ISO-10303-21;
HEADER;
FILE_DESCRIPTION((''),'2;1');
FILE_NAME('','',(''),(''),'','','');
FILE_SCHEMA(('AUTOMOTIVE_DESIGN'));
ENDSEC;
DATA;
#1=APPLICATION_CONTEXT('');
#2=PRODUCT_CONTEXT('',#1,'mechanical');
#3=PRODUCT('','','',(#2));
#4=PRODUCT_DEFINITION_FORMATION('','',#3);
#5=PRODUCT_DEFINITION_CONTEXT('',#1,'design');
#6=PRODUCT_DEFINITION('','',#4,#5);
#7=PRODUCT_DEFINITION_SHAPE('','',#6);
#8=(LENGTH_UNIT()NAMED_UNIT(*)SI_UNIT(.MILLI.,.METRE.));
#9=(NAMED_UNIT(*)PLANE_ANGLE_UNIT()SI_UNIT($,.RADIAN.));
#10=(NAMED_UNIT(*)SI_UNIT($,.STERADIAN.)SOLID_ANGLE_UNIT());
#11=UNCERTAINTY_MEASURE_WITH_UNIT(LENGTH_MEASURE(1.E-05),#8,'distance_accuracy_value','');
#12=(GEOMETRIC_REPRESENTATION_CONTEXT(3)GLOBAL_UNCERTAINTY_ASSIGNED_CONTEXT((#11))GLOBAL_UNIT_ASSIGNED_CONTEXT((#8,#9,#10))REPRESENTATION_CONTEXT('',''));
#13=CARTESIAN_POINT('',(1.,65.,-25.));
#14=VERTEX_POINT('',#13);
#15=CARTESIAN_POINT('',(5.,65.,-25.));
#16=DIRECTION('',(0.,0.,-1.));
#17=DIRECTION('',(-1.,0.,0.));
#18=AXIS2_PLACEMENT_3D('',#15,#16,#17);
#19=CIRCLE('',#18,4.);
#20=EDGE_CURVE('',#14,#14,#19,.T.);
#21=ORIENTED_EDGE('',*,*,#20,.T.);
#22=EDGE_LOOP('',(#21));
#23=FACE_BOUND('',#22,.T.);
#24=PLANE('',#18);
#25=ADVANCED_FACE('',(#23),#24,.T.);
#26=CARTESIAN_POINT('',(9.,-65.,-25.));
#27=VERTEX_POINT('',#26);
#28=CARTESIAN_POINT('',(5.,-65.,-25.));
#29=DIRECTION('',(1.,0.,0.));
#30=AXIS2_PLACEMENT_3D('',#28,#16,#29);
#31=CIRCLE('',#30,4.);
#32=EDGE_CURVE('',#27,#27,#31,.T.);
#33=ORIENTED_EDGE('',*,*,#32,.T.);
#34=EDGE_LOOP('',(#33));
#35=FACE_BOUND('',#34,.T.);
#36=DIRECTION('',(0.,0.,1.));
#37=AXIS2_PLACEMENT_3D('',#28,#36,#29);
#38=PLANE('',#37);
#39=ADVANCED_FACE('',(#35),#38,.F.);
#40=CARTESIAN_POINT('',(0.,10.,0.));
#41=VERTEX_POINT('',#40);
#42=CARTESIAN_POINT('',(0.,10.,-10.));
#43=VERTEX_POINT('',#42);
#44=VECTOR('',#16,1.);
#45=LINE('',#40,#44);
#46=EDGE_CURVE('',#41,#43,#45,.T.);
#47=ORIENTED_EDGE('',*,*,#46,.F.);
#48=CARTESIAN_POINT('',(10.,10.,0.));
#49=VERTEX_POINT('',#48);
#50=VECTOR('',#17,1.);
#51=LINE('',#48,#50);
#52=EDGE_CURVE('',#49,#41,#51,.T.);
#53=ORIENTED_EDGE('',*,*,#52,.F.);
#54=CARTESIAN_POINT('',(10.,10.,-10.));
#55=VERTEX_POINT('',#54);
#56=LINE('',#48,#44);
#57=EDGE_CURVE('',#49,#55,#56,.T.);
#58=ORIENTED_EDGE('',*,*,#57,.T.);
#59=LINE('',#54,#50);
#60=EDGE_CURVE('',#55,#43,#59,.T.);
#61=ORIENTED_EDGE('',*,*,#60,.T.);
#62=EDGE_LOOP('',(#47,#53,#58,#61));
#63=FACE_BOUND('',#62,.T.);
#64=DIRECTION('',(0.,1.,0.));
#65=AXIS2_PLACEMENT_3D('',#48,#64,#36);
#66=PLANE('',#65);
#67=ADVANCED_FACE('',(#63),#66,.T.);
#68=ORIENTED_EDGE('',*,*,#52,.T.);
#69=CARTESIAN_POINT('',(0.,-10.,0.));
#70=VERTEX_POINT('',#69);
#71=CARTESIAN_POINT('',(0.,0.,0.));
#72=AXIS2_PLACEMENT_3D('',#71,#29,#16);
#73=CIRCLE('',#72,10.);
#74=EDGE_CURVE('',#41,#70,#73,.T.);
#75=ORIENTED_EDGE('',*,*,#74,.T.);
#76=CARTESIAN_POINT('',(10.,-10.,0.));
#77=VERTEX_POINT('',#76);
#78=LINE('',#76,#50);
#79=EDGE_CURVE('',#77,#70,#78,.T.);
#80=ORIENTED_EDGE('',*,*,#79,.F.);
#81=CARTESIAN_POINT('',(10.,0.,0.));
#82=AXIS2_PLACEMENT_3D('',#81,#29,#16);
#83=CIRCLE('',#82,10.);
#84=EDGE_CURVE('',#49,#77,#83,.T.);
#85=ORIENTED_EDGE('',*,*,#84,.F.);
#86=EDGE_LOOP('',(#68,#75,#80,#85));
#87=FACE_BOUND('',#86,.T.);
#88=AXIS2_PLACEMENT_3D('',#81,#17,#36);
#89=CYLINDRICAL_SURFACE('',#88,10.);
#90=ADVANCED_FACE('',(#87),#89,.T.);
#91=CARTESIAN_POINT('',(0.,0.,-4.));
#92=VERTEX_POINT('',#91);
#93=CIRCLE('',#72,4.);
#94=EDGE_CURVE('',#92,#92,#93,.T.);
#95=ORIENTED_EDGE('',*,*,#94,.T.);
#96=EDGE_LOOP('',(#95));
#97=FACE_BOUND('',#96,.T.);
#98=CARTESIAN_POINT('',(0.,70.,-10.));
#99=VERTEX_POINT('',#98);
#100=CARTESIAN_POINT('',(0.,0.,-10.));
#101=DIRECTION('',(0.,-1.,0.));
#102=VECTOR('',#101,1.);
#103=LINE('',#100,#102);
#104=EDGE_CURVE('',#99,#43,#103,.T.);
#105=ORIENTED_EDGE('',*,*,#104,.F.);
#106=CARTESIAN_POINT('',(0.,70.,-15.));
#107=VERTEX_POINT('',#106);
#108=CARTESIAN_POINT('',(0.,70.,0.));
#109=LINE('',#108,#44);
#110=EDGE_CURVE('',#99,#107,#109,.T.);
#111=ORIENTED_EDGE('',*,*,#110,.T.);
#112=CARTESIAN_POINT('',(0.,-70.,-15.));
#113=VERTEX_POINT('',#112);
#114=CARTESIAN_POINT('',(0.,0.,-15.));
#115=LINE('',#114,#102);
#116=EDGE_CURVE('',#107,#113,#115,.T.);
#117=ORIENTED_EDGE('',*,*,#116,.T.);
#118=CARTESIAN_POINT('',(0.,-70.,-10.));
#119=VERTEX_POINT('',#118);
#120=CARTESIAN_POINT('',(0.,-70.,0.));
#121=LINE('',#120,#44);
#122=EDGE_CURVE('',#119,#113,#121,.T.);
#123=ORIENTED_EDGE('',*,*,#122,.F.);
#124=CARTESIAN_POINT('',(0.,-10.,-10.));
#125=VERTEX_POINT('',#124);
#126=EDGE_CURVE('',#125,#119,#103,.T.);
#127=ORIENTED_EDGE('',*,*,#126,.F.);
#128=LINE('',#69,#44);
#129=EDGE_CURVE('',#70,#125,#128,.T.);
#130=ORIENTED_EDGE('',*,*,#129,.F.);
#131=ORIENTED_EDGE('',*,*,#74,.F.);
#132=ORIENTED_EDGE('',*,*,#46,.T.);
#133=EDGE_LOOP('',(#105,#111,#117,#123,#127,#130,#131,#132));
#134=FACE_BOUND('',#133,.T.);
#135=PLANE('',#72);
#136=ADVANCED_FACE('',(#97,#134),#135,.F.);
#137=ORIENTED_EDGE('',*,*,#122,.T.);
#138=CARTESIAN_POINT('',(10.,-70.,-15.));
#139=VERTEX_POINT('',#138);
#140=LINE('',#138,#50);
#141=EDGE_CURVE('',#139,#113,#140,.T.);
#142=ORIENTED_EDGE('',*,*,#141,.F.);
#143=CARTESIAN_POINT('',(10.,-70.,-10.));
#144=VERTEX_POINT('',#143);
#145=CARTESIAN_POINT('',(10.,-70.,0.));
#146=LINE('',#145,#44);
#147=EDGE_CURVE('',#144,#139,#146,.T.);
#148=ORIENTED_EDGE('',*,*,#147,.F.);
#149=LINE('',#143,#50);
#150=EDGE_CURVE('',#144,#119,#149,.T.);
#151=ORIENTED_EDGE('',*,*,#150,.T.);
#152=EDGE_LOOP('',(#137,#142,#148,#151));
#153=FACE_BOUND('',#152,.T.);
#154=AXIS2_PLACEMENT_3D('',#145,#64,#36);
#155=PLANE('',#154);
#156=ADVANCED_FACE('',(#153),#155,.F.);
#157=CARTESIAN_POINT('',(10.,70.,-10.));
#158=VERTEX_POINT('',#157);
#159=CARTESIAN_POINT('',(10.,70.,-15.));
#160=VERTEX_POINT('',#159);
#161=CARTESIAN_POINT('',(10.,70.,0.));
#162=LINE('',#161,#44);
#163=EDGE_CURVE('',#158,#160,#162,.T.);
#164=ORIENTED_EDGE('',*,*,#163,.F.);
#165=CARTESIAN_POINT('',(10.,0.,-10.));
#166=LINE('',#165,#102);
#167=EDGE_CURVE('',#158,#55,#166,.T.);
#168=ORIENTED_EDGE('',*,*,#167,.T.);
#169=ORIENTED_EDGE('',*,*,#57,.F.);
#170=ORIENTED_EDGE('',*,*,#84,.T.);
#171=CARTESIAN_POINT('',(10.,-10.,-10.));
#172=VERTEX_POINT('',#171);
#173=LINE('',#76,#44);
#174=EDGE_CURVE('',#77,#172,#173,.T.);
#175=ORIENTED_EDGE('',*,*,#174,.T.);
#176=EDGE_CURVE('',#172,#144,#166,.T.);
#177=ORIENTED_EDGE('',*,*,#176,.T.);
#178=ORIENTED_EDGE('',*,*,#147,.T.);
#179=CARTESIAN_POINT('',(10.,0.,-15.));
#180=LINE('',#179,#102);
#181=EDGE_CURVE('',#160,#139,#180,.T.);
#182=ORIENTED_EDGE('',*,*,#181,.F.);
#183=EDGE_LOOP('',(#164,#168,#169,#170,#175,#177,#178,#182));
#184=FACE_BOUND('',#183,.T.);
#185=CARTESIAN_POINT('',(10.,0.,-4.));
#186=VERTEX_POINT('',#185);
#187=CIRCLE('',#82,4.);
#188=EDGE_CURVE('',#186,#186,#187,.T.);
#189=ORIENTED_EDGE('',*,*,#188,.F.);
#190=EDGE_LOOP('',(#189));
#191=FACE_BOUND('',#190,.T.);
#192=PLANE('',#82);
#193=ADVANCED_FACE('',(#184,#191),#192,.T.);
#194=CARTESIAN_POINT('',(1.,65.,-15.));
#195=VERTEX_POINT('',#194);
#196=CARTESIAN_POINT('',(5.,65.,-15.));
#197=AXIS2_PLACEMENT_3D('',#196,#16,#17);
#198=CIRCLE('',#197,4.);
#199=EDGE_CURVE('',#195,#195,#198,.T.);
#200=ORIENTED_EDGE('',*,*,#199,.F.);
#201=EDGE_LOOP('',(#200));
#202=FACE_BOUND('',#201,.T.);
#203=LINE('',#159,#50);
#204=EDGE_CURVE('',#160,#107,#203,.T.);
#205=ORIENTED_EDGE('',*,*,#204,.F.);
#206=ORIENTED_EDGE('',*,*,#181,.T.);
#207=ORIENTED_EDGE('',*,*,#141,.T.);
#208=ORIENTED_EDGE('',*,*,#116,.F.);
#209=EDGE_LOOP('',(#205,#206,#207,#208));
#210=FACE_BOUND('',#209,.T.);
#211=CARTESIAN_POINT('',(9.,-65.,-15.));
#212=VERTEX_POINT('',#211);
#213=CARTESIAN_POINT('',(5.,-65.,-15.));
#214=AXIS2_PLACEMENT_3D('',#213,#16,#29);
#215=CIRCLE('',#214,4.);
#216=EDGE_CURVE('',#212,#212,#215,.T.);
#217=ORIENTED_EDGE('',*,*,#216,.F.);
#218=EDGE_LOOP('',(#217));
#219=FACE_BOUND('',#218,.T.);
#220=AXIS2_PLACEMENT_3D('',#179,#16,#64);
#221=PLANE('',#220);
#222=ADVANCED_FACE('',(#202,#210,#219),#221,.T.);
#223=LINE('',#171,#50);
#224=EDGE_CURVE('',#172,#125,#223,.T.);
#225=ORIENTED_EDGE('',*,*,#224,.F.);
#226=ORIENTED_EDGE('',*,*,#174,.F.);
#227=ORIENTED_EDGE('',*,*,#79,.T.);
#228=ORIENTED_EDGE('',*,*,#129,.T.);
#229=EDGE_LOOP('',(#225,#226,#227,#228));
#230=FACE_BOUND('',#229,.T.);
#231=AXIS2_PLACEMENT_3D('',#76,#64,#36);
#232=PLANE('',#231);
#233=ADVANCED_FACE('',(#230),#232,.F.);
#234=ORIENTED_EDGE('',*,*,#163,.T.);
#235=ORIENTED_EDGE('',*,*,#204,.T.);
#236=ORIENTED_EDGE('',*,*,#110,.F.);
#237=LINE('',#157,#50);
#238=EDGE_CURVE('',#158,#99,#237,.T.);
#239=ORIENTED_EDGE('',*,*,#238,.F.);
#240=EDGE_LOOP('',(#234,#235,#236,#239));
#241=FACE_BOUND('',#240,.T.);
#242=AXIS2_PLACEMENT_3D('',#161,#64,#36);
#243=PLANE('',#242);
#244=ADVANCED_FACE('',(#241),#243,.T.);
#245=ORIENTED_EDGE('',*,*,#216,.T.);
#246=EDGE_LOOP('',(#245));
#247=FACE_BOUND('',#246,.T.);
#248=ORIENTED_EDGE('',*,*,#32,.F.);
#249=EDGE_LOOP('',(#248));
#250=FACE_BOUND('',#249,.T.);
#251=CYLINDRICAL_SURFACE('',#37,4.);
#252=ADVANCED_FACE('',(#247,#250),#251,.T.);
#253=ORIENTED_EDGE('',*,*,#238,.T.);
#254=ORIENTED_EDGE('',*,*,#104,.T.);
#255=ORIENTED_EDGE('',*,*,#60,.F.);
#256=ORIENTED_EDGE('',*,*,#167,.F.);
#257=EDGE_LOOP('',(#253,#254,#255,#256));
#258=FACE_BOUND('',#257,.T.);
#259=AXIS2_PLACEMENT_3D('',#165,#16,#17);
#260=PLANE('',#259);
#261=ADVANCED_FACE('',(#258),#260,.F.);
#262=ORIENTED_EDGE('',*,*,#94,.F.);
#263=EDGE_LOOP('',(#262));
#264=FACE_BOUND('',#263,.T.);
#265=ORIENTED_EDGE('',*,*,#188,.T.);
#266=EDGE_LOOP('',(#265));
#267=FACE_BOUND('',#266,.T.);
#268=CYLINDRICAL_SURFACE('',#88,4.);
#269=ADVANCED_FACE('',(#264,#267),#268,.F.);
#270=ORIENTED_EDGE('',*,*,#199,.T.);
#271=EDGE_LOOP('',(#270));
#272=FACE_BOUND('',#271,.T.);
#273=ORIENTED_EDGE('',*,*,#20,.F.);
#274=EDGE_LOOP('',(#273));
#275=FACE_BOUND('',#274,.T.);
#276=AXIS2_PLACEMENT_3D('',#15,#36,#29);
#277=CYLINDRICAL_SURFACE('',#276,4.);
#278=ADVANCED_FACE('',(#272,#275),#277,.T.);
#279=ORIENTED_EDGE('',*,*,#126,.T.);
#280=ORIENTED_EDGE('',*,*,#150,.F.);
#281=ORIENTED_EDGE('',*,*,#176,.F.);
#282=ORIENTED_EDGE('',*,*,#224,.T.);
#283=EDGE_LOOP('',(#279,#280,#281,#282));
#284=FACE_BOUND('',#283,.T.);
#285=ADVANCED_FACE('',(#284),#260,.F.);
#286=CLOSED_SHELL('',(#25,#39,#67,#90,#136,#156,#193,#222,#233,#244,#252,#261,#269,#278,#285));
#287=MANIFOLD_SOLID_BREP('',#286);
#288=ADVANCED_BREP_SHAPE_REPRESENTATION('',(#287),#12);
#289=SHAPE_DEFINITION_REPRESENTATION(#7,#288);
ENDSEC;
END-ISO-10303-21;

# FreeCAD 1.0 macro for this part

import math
import FreeCAD as App
import Part
import Sketcher
Q = App.Units.Quantity

doc = App.newDocument("Part")
body = doc.addObject("PartDesign::Body", "Body")

# Sketch on YZ plane
sketch1 = body.newObject("Sketcher::SketchObject", "Sketch")
sketch1.AttachmentSupport = (doc.getObject("YZ_Plane"), [""])
sketch1.MapMode = "FlatFace"
sketch1.addGeometry([
    Part.LineSegment(App.Vector(70, -10, 0), App.Vector(10, -10, 0)),  # 0
    Part.LineSegment(App.Vector(10, -10, 0), App.Vector(10, 0, 0)),  # 1
    Part.ArcOfCircle(Part.Circle(App.Vector(0, 0, 0), App.Vector(0, 0, 1), 10), math.radians(0), math.radians(180)),  # 2
    Part.LineSegment(App.Vector(-10, 0, 0), App.Vector(-10, -10, 0)),  # 3
    Part.LineSegment(App.Vector(-10, -10, 0), App.Vector(-70, -10, 0)),  # 4
    Part.LineSegment(App.Vector(-70, -10, 0), App.Vector(-70, -15, 0)),  # 5
    Part.LineSegment(App.Vector(-70, -15, 0), App.Vector(70, -15, 0)),  # 6
    Part.LineSegment(App.Vector(70, -15, 0), App.Vector(70, -10, 0)),  # 7
    Part.Circle(App.Vector(0, 0, 0), App.Vector(0, 0, 1), 4),  # 8
], False)
sketch1.addConstraint([
    Sketcher.Constraint("Coincident", 0, 2, 1, 1),
    Sketcher.Constraint("Tangent", 1, 2, 2, 1),
    Sketcher.Constraint("Tangent", 2, 2, 3, 1),
    Sketcher.Constraint("Coincident", 3, 2, 4, 1),
    Sketcher.Constraint("Coincident", 4, 2, 5, 1),
    Sketcher.Constraint("Coincident", 5, 2, 6, 1),
    Sketcher.Constraint("Coincident", 6, 2, 7, 1),
    Sketcher.Constraint("Coincident", 7, 2, 0, 1),
    Sketcher.Constraint("Horizontal", 0),
    Sketcher.Constraint("Vertical", 1),
    Sketcher.Constraint("Vertical", 3),
    Sketcher.Constraint("Horizontal", 4),
    Sketcher.Constraint("Vertical", 5),
    Sketcher.Constraint("Horizontal", 6),
    Sketcher.Constraint("Vertical", 7),
    Sketcher.Constraint("Coincident", 2, 3, -1, 1),
    Sketcher.Constraint("Coincident", 8, 3, -1, 1),
    Sketcher.Constraint("Symmetric", 4, 2, 7, 2, -2),
    Sketcher.Constraint("Diameter", 8, Q("8 mm")),
    Sketcher.Constraint("Radius", 2, Q("10 mm")),
    Sketcher.Constraint("DistanceX", 0, 2, 0, 1, Q("60 mm")),
    Sketcher.Constraint("DistanceY", 1, 1, 1, 2, Q("10 mm")),
    Sketcher.Constraint("DistanceY", 5, 2, 5, 1, Q("5 mm")),
])
pad1 = body.newObject("PartDesign::Pad", "Pad")
pad1.Profile = sketch1
pad1.Length = 10

# Sketch on XY plane
sketch2 = body.newObject("Sketcher::SketchObject", "Sketch001")
sketch2.AttachmentSupport = (doc.getObject("XY_Plane"), [""])
sketch2.MapMode = "FlatFace"
sketch2.AttachmentOffset = App.Placement(App.Vector(0, 0, -15), App.Rotation())
sketch2.addGeometry([
    Part.Circle(App.Vector(5, 65, 0), App.Vector(0, 0, 1), 4),
    Part.Circle(App.Vector(5, -65, 0), App.Vector(0, 0, 1), 4),
], False)
sketch2.addConstraint([
    Sketcher.Constraint("Equal", 0, 1),
    Sketcher.Constraint("Symmetric", 0, 3, 1, 3, -1),
    Sketcher.Constraint("Diameter", 0, Q("8 mm")),
    Sketcher.Constraint("DistanceX", -1, 1, 0, 3, Q("5 mm")),
    Sketcher.Constraint("DistanceY", -1, 1, 0, 3, Q("65 mm")),
])
pad2 = body.newObject("PartDesign::Pad", "Pad001")
pad2.Profile = sketch2
pad2.Length = 10
pad2.Reversed = True

doc.recompute()
